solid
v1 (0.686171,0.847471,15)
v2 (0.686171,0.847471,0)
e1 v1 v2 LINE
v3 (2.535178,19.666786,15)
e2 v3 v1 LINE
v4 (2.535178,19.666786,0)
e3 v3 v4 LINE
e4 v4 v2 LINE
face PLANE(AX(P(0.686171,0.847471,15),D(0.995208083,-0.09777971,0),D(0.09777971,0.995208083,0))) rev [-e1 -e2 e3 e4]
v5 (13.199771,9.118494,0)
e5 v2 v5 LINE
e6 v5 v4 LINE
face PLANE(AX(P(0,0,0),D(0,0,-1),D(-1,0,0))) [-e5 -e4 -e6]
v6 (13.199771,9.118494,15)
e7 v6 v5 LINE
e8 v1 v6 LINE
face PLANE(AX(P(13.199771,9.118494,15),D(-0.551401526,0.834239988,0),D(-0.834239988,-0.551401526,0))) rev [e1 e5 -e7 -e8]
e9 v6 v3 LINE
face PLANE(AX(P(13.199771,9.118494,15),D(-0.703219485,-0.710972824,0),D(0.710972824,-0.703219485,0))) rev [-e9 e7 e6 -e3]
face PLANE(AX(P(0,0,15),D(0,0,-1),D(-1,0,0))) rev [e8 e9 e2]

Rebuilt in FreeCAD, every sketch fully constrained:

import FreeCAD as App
import Part
import Sketcher

V = App.Vector
Q = App.Units.Quantity

doc = App.newDocument("Part")
body = doc.addObject("PartDesign::Body", "Body")

sketch1 = body.newObject("Sketcher::SketchObject", "Sketch")
sketch1.AttachmentSupport = (doc.getObject("XY_Plane"), [""])
sketch1.MapMode = "FlatFace"
sketch1.addGeometry([
    Part.LineSegment(V(13, 9, 0), V(3, 20, 0)),
    Part.LineSegment(V(3, 20, 0), V(1, 1, 0)),
    Part.LineSegment(V(1, 1, 0), V(13, 9, 0)),
], False)
sketch1.addConstraint([
    Sketcher.Constraint("Coincident", 0, 2, 1, 1),
    Sketcher.Constraint("Coincident", 1, 2, 2, 1),
    Sketcher.Constraint("Coincident", 2, 2, 0, 1),
    Sketcher.Constraint("Equal", 0, 2),
    Sketcher.Constraint("Distance", 0, Q("15 mm")),
    Sketcher.Constraint("DistanceX", 1, 2, 2, 2, Q("12.5136 mm")),
    Sketcher.Constraint("Distance", 1, Q("18.90993 mm")),
    Sketcher.Constraint("DistanceX", -1, 1, 0, 2, Q("2.535178 mm")),
    Sketcher.Constraint("DistanceY", -1, 1, 1, 2, Q("0.847471 mm")),
])
pad1 = body.newObject("PartDesign::Pad", "Pad")
pad1.Profile = sketch1
pad1.Length = 15

doc.recompute()
